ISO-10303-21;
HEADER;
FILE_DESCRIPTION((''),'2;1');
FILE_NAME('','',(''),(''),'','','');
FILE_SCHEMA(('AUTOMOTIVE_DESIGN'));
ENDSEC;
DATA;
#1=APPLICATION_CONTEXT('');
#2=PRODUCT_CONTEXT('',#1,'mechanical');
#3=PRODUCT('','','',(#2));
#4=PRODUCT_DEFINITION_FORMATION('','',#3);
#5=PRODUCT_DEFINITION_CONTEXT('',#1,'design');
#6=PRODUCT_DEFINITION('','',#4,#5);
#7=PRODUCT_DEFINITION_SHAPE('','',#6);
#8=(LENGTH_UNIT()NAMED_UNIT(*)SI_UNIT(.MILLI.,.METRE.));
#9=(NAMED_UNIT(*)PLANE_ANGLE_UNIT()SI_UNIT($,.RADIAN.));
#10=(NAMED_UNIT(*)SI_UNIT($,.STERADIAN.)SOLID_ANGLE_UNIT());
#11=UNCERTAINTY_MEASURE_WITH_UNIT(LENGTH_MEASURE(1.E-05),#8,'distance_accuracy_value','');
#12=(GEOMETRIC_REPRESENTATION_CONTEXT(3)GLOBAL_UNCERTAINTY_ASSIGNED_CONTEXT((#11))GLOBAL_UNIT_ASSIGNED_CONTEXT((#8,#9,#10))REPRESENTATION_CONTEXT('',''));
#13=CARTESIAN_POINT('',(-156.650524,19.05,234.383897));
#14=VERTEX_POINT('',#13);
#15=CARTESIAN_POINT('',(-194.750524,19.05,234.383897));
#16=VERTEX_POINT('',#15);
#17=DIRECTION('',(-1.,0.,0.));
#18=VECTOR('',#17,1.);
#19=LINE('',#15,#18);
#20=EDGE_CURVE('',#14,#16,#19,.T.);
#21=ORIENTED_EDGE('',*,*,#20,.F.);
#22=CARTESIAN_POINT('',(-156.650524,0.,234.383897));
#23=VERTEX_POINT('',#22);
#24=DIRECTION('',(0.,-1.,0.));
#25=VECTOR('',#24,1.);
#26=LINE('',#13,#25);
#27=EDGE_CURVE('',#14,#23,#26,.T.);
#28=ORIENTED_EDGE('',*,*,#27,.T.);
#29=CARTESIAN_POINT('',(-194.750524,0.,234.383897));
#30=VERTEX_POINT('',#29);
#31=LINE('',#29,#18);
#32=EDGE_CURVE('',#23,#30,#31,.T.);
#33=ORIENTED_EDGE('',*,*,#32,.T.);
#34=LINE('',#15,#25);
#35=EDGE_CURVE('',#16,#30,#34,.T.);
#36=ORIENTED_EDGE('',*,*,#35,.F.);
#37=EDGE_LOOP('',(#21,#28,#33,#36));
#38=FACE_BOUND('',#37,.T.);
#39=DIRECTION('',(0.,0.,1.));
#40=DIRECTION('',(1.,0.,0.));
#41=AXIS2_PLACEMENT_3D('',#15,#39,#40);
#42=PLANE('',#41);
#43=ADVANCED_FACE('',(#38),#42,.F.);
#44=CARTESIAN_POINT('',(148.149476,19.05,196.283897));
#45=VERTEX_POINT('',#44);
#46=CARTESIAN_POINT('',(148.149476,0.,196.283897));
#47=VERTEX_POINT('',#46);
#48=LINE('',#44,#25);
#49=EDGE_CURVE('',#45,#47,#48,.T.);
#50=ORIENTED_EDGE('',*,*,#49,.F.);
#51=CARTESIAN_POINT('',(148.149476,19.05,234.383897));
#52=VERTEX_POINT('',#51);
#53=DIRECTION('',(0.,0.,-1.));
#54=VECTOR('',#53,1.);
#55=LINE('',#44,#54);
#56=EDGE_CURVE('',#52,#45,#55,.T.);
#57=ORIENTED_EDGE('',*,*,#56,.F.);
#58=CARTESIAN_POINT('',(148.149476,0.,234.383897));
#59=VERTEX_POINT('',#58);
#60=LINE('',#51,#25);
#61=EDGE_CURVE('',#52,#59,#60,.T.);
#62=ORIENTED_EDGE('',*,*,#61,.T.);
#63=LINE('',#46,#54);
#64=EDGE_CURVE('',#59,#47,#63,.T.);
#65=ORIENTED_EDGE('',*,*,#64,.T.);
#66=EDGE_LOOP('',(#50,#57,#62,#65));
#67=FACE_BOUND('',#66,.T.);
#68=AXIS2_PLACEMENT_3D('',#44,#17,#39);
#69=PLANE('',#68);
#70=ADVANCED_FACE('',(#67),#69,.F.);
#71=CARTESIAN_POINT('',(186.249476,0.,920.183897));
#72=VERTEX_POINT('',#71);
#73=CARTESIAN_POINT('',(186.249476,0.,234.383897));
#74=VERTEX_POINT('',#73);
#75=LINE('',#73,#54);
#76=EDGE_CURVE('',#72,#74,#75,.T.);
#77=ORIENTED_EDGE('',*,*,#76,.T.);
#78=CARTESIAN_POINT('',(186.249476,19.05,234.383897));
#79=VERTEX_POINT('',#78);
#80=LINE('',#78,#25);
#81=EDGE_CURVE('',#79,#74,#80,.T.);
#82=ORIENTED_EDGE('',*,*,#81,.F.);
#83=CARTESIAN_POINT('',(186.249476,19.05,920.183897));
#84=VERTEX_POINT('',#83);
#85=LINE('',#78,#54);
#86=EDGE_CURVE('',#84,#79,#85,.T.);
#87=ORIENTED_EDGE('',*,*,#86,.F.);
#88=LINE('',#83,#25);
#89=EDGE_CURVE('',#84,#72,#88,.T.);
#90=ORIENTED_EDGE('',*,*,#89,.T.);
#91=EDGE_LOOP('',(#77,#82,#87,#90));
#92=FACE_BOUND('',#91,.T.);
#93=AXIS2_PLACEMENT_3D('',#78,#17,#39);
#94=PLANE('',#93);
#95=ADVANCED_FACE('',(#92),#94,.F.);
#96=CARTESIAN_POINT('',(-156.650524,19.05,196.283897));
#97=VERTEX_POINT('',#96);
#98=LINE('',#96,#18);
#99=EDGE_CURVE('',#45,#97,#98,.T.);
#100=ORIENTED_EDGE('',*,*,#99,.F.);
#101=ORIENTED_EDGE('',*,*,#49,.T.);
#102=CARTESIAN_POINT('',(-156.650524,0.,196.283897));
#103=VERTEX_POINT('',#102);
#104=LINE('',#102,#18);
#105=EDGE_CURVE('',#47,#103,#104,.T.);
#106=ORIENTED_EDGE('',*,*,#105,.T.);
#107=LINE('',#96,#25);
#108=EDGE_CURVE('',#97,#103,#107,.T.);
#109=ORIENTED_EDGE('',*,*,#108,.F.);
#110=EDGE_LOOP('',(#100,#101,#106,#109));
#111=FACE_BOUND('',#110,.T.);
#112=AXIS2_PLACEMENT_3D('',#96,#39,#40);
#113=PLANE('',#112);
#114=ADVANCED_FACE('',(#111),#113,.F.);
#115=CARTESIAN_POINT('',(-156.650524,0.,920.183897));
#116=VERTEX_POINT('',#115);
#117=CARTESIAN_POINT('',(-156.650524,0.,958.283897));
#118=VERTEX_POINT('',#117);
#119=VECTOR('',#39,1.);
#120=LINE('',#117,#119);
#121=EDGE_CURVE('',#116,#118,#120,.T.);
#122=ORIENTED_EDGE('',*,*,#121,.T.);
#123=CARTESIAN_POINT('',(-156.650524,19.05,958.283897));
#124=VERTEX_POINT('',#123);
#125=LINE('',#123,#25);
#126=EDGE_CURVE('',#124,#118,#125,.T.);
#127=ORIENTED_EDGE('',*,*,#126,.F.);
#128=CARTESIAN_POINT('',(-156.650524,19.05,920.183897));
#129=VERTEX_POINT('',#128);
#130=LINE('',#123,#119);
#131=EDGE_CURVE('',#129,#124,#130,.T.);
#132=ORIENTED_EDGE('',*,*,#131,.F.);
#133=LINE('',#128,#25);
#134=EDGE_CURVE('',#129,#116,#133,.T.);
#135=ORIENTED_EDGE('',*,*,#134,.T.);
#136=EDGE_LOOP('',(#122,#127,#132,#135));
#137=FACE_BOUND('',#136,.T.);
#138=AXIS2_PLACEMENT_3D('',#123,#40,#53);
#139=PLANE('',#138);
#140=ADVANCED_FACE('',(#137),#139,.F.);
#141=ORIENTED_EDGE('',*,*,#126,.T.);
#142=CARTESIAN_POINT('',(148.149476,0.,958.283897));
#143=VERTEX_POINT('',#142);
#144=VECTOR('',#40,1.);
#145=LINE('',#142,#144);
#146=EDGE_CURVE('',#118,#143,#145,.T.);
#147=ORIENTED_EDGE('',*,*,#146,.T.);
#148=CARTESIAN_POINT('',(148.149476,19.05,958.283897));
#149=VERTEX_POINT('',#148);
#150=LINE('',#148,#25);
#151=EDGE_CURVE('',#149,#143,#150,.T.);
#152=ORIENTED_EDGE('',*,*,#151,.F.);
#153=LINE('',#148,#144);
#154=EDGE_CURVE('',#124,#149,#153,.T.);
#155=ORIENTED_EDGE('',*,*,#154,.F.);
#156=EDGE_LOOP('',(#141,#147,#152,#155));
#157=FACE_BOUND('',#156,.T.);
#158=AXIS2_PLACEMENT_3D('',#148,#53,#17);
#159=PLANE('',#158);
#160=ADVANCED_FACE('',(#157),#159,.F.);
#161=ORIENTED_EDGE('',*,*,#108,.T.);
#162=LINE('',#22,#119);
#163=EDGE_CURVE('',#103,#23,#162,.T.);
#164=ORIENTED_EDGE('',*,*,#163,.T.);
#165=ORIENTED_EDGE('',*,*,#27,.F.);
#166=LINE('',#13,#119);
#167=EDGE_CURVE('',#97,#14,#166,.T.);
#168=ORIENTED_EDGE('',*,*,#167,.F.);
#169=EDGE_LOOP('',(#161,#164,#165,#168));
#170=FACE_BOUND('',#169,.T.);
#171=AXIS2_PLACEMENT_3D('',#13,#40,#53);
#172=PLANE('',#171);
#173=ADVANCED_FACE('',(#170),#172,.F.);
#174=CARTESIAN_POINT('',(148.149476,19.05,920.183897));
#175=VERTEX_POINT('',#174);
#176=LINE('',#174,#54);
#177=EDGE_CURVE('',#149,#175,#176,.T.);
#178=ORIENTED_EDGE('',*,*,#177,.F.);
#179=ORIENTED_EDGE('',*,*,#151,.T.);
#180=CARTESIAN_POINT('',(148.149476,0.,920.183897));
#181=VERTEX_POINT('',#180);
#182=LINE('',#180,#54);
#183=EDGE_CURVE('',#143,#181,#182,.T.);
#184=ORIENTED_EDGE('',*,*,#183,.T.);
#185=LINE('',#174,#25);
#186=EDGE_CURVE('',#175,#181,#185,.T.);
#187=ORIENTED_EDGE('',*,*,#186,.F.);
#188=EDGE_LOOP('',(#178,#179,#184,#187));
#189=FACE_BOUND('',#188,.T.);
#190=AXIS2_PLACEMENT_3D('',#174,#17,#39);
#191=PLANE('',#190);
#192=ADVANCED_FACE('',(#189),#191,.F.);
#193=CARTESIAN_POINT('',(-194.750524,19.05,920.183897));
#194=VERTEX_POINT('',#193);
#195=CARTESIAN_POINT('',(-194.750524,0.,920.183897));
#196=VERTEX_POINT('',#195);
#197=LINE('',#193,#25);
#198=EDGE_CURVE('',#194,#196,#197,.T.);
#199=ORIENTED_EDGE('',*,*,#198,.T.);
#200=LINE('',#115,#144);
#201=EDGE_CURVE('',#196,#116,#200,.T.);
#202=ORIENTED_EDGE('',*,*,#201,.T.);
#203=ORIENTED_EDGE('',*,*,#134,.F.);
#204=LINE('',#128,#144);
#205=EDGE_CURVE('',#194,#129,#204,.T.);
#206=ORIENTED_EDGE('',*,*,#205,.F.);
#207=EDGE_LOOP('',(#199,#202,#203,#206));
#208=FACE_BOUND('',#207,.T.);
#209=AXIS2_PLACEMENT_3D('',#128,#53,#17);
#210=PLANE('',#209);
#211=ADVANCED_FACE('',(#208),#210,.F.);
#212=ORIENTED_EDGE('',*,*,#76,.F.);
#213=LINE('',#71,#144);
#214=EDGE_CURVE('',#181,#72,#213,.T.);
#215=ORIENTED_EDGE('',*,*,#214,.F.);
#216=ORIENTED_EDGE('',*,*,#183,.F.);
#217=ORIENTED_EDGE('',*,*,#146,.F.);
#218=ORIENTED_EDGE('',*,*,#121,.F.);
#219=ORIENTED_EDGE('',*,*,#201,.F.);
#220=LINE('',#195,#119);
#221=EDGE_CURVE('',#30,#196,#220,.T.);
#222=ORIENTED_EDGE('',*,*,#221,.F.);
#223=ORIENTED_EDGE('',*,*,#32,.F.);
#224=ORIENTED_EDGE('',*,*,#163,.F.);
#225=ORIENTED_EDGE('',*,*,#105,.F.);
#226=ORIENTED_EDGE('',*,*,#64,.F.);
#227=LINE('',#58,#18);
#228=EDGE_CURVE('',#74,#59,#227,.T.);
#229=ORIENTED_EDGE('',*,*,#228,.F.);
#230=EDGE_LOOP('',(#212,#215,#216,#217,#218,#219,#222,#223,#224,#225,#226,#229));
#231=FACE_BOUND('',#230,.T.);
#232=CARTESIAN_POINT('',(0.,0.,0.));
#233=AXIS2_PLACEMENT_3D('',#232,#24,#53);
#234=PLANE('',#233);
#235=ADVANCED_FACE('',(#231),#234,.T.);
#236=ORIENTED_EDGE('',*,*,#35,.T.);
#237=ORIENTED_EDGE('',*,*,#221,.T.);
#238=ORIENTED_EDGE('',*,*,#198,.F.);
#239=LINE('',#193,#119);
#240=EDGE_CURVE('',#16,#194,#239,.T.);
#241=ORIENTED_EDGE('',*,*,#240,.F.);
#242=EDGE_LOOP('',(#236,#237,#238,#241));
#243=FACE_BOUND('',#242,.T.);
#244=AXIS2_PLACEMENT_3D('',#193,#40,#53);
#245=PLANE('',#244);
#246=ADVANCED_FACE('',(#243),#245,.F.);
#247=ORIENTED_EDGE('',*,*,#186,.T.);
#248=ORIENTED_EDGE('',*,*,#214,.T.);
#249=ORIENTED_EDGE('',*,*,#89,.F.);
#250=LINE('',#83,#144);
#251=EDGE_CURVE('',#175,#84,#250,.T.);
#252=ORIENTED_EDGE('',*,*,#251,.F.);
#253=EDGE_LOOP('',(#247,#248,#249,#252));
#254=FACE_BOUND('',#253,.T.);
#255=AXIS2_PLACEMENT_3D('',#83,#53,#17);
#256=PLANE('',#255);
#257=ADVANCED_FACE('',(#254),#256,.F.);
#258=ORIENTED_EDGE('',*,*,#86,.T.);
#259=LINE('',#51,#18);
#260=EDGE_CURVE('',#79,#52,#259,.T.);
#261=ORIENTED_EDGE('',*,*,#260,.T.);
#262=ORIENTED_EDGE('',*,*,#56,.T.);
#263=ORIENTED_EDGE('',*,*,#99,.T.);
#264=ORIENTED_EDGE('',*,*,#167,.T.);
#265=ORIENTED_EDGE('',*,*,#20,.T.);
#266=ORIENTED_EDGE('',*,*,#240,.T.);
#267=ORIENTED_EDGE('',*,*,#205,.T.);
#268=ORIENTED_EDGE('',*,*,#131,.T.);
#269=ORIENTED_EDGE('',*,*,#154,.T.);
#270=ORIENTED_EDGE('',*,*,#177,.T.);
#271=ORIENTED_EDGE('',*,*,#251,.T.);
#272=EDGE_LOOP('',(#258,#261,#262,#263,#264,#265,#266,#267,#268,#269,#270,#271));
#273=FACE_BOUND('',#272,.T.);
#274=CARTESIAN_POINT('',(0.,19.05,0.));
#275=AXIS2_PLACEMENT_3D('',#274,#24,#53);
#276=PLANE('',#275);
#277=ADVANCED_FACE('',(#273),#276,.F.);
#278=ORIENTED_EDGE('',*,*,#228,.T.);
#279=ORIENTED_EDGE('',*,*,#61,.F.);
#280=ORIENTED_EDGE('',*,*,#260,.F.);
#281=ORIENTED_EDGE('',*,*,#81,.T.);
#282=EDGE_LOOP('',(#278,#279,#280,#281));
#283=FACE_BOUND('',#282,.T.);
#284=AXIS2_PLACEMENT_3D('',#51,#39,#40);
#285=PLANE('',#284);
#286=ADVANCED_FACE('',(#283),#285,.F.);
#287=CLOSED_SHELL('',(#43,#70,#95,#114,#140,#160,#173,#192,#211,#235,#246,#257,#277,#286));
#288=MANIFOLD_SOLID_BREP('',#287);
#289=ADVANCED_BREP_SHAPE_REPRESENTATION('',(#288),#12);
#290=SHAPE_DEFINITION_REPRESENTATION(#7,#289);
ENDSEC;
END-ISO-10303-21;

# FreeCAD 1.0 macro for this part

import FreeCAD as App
import Part
import Sketcher

V = App.Vector
Q = App.Units.Quantity


def add_polygon(sketch, points):
    """Adds a closed chain of lines whose ends are joined by coincident constraints."""
    first, n = sketch.GeometryCount, len(points)
    for a, b in zip(points, points[1:] + points[:1]):
        sketch.addGeometry(Part.LineSegment(App.Vector(*a, 0), App.Vector(*b, 0)), False)
    for i in range(n):
        sketch.addConstraint(Sketcher.Constraint("Coincident", first + i, 2, first + (i + 1) % n, 1))

doc = App.newDocument("Part")
params = doc.addObject("Spreadsheet::Sheet", "Params")
for row, (alias, value) in enumerate([
    ("sketch1_width", "12 in"),
    ("sketch1_height", "27 in"),
    ("sketch1_width2", "1.5 in"),
    ("pad1_length", "0.75 in"),
], start=1):
    params.set(f"A{row}", alias)
    params.set(f"B{row}", "=" + value)
    params.setAlias(f"B{row}", alias)

body = doc.addObject("PartDesign::Body", "Body")

sketch1 = body.newObject("Sketcher::SketchObject", "Sketch")
sketch1.AttachmentSupport = (doc.getObject("XZ_Plane"), [""])
sketch1.MapMode = "FlatFace"
add_polygon(sketch1, [(-195, 234), (-195, 920), (-157, 920), (-157, 958), (148, 958), (148, 920), (186, 920), (186, 234), (148, 234), (148, 196), (-157, 196), (-157, 234)])
sketch1.addConstraint([
    Sketcher.Constraint("Vertical", 0),
    Sketcher.Constraint("Horizontal", 1),
    Sketcher.Constraint("Vertical", 2),
    Sketcher.Constraint("Horizontal", 3),
    Sketcher.Constraint("Vertical", 4),
    Sketcher.Constraint("Horizontal", 5),
    Sketcher.Constraint("Vertical", 6),
    Sketcher.Constraint("Horizontal", 7),
    Sketcher.Constraint("Vertical", 8),
    Sketcher.Constraint("Horizontal", 9),
    Sketcher.Constraint("Vertical", 10),
    Sketcher.Constraint("Horizontal", 11),
    Sketcher.Constraint("Horizontal", 1, 2, 4, 2),
    Sketcher.Constraint("Horizontal", 7, 2, 10, 2),
    Sketcher.Constraint("Vertical", 4, 2, 7, 2),
    Sketcher.Constraint("Vertical", 2, 2, 9, 2),
    Sketcher.Constraint("Equal", 1, 5),
    Sketcher.Constraint("Equal", 11, 2),
    Sketcher.Constraint("Equal", 4, 8),
    Sketcher.Constraint("DistanceX", 3, 1, 3, 2, Q("12 in")),
    Sketcher.Constraint("DistanceY", 0, 1, 0, 2, Q("27 in")),
    Sketcher.Constraint("DistanceX", 1, 1, 1, 2, Q("1.5 in")),
    Sketcher.Constraint("DistanceX", 0, 2, -1, 1, 194.750524),
    Sketcher.Constraint("DistanceY", -1, 1, 0, 2, 920.183897),
])
sketch1.setExpression("Constraints[31]", "Params.sketch1_width")
sketch1.setExpression("Constraints[32]", "Params.sketch1_height")
sketch1.setExpression("Constraints[33]", "Params.sketch1_width2")
pad1 = body.newObject("PartDesign::Pad", "Pad")
pad1.Profile = sketch1
pad1.setExpression("Length", "Params.pad1_length")
pad1.Reversed = True

doc.recompute()
